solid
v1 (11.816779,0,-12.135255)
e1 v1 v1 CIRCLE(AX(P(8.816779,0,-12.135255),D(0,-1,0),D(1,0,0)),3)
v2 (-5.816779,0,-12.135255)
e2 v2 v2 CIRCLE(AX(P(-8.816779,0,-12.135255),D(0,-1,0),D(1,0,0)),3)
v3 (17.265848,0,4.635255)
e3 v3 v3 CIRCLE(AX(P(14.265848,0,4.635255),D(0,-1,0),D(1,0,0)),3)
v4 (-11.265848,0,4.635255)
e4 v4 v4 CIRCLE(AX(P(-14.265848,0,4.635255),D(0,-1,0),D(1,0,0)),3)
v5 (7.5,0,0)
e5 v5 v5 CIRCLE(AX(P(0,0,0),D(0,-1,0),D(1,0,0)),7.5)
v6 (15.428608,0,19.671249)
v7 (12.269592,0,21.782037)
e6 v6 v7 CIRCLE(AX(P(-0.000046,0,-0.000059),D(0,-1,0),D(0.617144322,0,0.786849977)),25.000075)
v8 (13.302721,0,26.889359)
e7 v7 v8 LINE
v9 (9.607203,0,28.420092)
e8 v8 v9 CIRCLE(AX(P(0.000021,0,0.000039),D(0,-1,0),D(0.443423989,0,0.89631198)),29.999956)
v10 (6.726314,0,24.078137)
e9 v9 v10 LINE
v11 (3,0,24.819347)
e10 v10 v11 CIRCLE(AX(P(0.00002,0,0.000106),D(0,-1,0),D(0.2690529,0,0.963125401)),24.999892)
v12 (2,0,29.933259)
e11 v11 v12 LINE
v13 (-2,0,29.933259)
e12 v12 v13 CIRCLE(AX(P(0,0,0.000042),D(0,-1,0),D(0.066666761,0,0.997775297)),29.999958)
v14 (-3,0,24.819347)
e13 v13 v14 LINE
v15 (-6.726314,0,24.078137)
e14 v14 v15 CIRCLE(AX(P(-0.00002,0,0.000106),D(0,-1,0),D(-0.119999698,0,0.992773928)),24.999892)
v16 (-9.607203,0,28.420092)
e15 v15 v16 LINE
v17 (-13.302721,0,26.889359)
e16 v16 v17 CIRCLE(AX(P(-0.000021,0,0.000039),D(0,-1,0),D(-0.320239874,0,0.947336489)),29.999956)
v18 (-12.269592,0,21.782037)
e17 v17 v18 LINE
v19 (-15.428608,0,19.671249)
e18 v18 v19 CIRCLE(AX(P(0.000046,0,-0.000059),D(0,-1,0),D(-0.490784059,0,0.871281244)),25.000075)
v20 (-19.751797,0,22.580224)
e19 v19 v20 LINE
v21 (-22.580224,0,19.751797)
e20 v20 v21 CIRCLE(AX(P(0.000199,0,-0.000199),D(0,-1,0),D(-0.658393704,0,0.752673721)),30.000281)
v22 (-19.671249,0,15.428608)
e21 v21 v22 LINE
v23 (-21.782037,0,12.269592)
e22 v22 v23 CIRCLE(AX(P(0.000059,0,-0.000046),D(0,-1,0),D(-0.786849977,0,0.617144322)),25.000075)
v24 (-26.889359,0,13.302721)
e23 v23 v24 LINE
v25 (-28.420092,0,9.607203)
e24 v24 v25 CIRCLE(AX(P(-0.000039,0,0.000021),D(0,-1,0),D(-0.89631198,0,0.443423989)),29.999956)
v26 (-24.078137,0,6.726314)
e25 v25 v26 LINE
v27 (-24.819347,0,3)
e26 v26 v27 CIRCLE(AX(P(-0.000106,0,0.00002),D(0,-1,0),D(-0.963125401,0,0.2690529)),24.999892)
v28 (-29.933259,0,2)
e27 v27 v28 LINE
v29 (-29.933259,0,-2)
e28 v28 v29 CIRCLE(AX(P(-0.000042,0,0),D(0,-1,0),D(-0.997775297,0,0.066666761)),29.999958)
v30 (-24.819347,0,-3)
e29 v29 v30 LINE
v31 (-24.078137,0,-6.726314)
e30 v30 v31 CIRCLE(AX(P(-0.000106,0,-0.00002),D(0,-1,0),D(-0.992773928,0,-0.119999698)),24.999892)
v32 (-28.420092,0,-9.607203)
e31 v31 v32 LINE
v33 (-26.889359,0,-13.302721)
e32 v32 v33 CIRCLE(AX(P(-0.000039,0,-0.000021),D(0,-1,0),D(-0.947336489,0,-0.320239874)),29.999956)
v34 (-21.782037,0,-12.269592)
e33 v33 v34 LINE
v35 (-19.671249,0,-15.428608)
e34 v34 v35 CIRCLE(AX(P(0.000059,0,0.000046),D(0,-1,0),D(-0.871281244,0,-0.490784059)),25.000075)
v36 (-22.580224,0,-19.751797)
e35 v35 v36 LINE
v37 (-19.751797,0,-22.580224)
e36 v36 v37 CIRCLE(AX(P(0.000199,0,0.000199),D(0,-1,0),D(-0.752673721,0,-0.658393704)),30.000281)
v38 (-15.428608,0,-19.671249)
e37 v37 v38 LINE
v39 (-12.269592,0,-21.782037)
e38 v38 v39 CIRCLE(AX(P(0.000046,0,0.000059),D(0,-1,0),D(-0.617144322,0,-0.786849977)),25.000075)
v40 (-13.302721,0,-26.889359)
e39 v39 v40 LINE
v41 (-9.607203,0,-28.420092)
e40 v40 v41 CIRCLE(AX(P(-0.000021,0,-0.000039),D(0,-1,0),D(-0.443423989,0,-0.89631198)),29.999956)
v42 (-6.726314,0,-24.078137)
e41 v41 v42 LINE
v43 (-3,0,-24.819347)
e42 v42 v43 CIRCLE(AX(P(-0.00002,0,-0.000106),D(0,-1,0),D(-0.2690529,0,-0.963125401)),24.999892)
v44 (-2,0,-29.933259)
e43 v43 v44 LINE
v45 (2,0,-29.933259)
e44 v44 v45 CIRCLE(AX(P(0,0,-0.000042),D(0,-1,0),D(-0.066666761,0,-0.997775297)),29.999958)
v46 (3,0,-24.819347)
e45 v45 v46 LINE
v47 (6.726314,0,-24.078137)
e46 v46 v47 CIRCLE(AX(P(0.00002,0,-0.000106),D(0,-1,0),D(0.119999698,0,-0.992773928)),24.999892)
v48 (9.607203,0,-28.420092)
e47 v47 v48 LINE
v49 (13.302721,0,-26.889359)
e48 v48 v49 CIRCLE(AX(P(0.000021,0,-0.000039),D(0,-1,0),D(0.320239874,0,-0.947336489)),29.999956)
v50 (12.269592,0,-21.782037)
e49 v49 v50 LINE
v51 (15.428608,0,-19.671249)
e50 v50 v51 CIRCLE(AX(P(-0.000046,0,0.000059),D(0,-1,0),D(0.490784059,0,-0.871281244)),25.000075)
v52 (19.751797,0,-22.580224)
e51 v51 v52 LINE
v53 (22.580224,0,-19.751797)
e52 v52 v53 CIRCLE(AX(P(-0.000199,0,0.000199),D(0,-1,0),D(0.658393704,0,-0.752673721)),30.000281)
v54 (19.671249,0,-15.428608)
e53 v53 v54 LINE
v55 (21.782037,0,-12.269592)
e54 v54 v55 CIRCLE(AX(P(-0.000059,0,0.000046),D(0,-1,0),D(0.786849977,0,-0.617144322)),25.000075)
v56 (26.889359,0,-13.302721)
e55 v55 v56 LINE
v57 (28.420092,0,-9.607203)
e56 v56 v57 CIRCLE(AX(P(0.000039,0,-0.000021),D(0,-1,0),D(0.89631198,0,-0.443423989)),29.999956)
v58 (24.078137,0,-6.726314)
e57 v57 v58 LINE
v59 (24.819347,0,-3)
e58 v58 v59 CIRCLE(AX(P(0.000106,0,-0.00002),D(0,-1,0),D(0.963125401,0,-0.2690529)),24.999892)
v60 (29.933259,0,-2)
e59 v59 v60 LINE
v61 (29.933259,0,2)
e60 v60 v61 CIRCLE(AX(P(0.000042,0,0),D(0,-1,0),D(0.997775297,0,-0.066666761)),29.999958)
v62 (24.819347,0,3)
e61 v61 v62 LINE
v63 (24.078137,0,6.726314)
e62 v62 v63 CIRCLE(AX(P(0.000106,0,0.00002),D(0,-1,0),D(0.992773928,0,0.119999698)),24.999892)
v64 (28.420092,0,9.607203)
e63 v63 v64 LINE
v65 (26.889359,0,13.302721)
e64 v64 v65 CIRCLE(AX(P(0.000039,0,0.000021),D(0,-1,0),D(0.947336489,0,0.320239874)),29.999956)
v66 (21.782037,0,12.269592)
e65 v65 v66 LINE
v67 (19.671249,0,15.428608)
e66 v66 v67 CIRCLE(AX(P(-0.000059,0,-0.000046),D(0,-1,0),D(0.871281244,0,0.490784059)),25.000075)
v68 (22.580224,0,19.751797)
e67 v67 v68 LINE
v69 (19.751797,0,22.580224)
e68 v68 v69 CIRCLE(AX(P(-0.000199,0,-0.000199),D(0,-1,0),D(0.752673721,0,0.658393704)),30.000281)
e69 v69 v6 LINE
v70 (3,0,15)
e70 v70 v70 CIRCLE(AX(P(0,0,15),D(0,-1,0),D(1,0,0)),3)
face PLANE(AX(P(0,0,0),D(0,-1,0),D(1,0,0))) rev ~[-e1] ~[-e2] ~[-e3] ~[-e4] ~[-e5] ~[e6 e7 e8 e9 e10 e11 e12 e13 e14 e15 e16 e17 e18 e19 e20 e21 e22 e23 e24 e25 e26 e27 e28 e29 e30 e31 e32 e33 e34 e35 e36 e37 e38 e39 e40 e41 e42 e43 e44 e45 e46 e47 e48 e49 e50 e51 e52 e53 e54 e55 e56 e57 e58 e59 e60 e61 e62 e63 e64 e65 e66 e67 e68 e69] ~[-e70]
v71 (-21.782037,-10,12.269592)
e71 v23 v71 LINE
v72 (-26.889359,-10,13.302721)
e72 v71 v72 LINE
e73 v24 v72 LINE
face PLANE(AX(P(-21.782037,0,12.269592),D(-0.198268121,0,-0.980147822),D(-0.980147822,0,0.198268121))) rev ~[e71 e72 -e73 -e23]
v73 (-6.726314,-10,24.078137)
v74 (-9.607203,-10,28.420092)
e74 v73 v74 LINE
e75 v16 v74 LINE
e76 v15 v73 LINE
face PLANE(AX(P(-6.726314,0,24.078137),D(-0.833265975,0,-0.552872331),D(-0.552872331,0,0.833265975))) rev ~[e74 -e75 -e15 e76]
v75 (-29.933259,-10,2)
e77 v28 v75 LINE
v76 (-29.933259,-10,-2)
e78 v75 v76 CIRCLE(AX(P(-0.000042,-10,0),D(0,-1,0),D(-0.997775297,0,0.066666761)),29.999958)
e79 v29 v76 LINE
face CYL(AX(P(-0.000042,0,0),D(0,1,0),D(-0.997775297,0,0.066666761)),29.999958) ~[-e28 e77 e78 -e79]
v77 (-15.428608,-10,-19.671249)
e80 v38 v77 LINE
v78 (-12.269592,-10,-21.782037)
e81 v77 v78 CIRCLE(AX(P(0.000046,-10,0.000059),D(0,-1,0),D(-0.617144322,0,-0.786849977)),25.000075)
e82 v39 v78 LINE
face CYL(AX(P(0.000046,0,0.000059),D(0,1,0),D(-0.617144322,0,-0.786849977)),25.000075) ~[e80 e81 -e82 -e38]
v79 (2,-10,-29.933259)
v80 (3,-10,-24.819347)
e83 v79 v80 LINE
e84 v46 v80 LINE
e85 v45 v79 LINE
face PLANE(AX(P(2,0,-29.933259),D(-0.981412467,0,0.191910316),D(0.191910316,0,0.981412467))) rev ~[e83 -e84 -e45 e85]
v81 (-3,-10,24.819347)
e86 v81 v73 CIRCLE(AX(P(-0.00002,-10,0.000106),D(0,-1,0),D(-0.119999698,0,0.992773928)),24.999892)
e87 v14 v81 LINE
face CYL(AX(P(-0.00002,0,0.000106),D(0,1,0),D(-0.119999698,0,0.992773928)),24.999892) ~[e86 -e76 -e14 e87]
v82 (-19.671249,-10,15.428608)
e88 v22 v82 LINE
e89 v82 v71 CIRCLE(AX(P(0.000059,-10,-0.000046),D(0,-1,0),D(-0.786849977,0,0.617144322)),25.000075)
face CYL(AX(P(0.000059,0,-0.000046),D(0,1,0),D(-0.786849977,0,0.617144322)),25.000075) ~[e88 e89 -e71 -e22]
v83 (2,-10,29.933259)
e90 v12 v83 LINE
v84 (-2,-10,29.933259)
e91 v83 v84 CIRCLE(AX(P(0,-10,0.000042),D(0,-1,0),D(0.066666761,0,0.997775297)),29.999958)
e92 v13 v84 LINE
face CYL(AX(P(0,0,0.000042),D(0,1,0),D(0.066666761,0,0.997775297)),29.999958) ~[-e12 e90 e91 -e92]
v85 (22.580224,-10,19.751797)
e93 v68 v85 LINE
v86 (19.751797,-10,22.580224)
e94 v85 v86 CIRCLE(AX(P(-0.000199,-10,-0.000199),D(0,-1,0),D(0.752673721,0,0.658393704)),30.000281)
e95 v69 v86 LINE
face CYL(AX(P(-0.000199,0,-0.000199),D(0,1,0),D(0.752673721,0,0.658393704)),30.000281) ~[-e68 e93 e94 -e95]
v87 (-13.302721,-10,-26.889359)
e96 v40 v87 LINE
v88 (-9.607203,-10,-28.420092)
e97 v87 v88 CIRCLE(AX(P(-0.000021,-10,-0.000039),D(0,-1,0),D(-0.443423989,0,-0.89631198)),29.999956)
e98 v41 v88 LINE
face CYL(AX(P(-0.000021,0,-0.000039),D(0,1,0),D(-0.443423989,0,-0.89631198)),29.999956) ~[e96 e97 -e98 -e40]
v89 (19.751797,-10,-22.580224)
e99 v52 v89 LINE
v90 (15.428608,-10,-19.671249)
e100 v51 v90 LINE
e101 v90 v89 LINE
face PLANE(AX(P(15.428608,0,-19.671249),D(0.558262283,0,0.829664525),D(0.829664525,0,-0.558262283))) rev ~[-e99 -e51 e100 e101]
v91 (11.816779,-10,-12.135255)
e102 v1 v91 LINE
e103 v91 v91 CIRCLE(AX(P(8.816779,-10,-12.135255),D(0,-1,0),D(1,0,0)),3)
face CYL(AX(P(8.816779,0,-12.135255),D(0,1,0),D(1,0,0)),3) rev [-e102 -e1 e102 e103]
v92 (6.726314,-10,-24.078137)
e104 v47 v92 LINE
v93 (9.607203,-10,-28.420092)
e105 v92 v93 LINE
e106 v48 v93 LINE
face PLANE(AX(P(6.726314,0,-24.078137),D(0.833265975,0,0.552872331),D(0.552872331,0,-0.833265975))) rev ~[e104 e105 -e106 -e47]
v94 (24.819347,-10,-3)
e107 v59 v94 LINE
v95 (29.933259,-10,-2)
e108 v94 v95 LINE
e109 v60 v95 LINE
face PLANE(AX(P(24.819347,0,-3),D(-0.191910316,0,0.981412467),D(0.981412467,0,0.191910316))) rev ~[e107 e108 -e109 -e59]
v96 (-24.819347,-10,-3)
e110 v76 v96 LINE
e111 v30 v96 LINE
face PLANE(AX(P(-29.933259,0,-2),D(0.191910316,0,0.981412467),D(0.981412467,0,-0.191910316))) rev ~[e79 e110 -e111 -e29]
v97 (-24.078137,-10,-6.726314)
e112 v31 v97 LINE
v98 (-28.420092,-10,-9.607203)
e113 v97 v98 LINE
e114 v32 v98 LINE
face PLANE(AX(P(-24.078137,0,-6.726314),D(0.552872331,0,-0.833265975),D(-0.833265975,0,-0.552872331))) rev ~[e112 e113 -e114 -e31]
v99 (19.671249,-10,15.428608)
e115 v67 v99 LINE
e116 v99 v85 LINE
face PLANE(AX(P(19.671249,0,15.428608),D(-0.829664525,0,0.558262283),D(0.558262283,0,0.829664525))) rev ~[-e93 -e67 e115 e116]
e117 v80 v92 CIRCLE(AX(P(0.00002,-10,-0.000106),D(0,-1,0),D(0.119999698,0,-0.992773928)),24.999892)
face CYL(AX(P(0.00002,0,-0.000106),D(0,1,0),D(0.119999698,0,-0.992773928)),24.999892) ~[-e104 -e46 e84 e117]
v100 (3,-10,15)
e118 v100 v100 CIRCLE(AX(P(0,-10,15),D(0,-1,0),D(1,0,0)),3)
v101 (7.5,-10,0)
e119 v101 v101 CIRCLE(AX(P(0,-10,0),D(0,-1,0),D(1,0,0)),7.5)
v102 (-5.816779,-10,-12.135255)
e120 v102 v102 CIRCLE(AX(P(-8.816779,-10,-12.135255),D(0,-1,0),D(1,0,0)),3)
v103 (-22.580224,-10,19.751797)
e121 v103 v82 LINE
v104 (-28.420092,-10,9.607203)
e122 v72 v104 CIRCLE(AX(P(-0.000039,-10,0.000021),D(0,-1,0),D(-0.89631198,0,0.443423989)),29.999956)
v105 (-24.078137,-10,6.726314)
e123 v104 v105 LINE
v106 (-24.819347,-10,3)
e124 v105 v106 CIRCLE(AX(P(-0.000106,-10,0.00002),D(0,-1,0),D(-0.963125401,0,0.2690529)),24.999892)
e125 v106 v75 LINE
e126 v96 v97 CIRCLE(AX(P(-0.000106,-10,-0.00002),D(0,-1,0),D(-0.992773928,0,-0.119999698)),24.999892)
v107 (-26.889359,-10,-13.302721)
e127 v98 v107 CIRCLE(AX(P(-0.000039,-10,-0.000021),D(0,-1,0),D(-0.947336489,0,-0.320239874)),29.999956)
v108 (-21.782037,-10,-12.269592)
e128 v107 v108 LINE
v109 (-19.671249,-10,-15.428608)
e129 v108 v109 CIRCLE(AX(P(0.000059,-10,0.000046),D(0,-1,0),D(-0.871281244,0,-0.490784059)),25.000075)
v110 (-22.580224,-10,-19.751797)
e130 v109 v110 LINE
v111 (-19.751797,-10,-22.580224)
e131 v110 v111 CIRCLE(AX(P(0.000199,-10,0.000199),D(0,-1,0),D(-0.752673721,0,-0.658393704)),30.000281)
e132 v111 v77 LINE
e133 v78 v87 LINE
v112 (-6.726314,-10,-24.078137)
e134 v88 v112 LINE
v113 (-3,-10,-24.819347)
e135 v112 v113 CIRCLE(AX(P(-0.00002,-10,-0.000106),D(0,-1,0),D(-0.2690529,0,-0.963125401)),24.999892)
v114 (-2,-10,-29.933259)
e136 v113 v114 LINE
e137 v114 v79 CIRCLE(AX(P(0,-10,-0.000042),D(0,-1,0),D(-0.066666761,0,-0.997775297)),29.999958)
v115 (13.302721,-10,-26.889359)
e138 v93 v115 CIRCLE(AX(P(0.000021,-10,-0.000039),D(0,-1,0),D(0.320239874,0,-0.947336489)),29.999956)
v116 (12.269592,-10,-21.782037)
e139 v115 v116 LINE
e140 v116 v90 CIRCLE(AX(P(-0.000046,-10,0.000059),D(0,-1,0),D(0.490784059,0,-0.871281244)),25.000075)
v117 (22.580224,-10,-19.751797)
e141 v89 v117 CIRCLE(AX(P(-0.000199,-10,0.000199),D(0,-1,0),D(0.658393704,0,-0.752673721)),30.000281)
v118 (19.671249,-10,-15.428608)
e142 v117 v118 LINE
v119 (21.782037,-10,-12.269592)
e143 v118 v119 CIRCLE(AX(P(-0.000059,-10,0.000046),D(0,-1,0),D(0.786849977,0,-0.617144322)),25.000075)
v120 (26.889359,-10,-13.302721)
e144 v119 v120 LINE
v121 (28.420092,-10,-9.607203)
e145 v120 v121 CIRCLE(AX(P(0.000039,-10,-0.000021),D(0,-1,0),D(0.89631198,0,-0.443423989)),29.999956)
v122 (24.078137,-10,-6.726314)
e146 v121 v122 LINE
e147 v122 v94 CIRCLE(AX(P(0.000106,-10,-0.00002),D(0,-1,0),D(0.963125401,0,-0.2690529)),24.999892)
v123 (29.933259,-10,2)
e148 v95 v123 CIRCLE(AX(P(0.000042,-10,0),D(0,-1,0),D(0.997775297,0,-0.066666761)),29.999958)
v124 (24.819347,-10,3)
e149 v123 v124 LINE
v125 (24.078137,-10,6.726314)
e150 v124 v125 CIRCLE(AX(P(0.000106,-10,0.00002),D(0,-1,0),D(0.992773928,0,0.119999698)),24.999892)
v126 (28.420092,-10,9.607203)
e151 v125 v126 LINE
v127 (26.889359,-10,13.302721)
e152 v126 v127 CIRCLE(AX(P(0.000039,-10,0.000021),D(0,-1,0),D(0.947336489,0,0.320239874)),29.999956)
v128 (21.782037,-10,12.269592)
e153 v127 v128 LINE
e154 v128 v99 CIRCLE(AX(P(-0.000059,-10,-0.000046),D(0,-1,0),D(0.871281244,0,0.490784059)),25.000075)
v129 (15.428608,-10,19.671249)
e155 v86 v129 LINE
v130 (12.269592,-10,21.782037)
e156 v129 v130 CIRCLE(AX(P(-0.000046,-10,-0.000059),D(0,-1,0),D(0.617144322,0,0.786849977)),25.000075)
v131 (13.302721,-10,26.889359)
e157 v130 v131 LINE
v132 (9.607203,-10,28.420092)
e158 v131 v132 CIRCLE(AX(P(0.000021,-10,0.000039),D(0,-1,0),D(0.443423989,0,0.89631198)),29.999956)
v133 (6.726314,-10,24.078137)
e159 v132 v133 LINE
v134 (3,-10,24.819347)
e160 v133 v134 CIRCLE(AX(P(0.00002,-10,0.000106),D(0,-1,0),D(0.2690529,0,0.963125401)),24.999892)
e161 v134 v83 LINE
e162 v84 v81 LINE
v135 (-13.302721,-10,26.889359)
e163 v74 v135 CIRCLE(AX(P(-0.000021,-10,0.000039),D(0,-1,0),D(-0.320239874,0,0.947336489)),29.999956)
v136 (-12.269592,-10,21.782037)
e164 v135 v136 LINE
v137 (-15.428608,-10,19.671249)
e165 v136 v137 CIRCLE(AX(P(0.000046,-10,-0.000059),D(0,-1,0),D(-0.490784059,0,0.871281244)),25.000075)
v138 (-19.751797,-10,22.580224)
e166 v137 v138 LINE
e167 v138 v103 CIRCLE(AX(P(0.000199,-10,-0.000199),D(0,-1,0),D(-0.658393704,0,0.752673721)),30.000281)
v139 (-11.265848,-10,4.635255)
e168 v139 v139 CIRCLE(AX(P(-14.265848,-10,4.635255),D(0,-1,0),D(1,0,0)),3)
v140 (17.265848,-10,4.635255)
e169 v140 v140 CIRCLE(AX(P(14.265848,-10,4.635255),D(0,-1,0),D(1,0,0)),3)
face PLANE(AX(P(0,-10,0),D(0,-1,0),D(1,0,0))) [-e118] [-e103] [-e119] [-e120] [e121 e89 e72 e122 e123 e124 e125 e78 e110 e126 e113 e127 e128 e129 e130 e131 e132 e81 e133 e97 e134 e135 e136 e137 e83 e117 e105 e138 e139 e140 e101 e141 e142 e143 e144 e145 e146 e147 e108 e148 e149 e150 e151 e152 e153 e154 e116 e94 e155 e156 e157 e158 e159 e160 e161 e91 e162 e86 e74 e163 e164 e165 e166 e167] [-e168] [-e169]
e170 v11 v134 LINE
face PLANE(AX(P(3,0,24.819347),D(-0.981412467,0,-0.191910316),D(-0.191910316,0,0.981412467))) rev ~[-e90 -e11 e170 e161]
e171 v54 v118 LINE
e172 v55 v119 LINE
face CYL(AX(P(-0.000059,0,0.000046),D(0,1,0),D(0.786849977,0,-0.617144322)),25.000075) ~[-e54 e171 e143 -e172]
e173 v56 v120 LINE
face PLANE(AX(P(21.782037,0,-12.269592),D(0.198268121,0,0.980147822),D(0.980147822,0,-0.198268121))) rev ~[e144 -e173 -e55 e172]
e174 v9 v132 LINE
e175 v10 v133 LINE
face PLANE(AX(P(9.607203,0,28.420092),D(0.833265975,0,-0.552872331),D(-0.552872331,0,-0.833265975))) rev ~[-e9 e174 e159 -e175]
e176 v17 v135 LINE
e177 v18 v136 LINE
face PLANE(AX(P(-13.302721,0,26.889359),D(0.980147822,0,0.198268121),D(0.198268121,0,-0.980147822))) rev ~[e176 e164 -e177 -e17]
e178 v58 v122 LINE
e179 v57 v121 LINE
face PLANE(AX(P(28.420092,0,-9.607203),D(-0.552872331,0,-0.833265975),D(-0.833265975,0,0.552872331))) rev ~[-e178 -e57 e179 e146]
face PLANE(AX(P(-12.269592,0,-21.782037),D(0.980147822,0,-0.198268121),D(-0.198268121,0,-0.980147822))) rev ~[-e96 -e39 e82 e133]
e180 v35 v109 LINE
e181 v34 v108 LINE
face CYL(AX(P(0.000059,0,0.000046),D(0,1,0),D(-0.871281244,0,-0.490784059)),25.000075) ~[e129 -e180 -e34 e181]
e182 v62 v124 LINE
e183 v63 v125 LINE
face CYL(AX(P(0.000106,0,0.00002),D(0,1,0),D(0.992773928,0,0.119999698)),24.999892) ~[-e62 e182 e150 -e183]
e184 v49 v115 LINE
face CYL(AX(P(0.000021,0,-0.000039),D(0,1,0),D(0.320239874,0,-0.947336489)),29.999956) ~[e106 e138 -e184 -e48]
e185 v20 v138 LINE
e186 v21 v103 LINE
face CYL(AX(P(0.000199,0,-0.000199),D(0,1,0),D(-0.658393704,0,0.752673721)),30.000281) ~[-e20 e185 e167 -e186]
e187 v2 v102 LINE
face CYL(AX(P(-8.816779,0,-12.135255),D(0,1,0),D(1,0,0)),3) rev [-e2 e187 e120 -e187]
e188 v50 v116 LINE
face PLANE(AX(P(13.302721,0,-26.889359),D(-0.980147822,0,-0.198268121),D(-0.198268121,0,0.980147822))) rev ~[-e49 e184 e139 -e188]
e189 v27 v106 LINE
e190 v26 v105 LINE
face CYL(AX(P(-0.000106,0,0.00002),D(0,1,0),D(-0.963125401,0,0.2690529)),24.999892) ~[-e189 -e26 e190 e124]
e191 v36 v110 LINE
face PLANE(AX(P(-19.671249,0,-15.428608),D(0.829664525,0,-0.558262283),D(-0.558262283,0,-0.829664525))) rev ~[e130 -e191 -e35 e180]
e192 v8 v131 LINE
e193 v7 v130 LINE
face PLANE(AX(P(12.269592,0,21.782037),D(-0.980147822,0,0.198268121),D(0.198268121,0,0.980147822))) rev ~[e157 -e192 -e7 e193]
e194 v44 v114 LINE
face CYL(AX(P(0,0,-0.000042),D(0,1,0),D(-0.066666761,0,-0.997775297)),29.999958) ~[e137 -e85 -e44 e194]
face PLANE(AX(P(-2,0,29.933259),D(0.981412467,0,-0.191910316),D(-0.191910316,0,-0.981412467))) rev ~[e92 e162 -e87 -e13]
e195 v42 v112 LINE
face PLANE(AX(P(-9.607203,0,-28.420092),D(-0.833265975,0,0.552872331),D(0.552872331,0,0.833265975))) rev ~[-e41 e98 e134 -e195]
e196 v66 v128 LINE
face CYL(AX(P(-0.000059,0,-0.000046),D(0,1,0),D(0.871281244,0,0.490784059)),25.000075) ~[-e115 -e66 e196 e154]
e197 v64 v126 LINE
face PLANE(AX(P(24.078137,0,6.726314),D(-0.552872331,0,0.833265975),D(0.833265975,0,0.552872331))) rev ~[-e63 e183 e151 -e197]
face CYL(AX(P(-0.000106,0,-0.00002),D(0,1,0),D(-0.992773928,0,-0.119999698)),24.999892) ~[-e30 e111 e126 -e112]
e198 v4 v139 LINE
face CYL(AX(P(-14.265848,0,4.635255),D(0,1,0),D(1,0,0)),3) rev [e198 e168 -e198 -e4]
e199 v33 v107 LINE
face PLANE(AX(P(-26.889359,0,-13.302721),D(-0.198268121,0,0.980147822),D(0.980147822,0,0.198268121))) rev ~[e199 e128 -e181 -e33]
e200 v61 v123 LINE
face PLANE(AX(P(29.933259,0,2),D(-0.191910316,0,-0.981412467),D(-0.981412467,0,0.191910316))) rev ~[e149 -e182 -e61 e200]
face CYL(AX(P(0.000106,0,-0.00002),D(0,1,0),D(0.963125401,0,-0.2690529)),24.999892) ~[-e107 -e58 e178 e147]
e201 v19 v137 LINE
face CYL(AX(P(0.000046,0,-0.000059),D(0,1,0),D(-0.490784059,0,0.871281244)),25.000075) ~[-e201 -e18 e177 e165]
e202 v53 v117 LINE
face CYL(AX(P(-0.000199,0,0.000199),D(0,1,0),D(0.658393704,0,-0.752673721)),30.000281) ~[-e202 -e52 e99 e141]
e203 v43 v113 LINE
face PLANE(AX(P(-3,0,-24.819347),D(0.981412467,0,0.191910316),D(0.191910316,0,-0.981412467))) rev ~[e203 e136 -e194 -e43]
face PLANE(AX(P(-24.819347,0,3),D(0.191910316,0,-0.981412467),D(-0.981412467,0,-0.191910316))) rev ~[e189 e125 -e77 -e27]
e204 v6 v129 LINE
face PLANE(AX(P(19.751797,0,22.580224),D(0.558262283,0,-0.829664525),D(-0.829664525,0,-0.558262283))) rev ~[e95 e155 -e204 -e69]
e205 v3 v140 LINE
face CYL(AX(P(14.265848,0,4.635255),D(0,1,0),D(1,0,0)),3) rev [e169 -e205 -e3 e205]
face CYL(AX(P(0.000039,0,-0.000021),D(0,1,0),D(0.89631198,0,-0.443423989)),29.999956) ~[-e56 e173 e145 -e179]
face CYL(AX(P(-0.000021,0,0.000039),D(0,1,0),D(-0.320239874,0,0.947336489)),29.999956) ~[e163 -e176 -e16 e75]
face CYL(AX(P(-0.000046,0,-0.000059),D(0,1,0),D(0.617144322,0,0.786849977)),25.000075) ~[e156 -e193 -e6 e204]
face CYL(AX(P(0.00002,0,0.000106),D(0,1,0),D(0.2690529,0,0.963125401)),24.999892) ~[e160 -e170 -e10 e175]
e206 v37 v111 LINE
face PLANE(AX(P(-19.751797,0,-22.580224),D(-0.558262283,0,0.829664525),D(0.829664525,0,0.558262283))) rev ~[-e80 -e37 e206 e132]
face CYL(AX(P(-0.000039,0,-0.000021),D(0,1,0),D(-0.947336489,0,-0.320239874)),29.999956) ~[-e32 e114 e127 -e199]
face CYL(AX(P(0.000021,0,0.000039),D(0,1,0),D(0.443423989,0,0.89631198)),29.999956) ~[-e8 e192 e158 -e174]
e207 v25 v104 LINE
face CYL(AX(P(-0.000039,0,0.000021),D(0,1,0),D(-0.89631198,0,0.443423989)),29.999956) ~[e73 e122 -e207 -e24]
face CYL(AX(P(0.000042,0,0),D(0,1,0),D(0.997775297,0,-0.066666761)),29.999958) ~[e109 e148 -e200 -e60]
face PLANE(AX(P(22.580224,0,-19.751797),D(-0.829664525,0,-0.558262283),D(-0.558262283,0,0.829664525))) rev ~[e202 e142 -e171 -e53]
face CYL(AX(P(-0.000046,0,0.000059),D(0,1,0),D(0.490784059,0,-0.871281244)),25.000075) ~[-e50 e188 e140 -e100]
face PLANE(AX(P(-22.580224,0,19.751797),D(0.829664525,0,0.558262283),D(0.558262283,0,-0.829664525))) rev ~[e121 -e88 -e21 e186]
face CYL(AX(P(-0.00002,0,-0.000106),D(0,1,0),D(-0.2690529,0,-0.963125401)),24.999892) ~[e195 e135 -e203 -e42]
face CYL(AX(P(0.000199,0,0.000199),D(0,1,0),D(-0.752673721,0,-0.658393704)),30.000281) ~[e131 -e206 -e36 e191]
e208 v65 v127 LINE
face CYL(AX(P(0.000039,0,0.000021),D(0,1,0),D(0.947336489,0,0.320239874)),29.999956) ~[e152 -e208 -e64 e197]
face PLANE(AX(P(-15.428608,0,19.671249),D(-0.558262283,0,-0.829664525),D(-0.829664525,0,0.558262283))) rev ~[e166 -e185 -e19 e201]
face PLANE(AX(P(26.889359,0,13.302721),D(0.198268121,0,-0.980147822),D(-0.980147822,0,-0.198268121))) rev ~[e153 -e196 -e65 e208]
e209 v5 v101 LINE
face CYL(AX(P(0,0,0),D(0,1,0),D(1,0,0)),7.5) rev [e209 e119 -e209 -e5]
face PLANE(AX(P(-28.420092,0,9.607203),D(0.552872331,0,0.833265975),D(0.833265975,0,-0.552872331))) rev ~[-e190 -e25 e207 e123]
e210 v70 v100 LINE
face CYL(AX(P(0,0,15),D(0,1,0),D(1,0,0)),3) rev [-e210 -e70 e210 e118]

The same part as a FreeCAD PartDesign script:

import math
import FreeCAD as App
import Part
import Sketcher

V = App.Vector

doc = App.newDocument("Part")
body = doc.addObject("PartDesign::Body", "Body")

# Sketch on XZ plane
sketch1 = body.newObject("Sketcher::SketchObject", "Sketch")
sketch1.AttachmentSupport = (doc.getObject("XZ_Plane"), [""])
sketch1.MapMode = "FlatFace"
sketch1.addGeometry(Part.LineSegment(V(-13.302721, 26.889359, 0), V(-12.269592, 21.782037, 0)), False)
sketch1.addGeometry(Part.ArcOfCircle(Part.Circle(V(0.000046, -0.000059, 0), V(0, 0, 1), 25.000075), math.radians(119.392129), math.radians(128.107896)), False)
sketch1.addGeometry(Part.LineSegment(V(-15.428608, 19.671249, 0), V(-19.751797, 22.580224, 0)), False)
sketch1.addGeometry(Part.ArcOfCircle(Part.Circle(V(0.000199, -0.000199, 0), V(0, 0, 1), 30.000281), math.radians(131.177482), math.radians(138.822518)), False)
sketch1.addGeometry(Part.LineSegment(V(-22.580224, 19.751797, 0), V(-19.671249, 15.428608, 0)), False)
sketch1.addGeometry(Part.ArcOfCircle(Part.Circle(V(0.000059, -0.000046, 0), V(0, 0, 1), 25.000075), math.radians(141.892104), math.radians(150.607871)), False)
sketch1.addGeometry(Part.LineSegment(V(-21.782037, 12.269592, 0), V(-26.889359, 13.302721, 0)), False)
sketch1.addGeometry(Part.ArcOfCircle(Part.Circle(V(-0.000039, 0.000021, 0), V(0, 0, 1), 29.999956), math.radians(153.67745), math.radians(161.322568)), False)
sketch1.addGeometry(Part.LineSegment(V(-28.420092, 9.607203, 0), V(-24.078137, 6.726314, 0)), False)
sketch1.addGeometry(Part.ArcOfCircle(Part.Circle(V(-0.000106, 0.00002, 0), V(0, 0, 1), 24.999892), math.radians(164.392083), math.radians(173.107915)), False)
sketch1.addGeometry(Part.LineSegment(V(-24.819347, 3, 0), V(-29.933259, 2, 0)), False)
sketch1.addGeometry(Part.ArcOfCircle(Part.Circle(V(-0.000042, 0, 0), V(0, 0, 1), 29.999958), math.radians(176.177441), math.radians(183.822559)), False)
sketch1.addGeometry(Part.LineSegment(V(-29.933259, -2, 0), V(-24.819347, -3, 0)), False)
sketch1.addGeometry(Part.ArcOfCircle(Part.Circle(V(-0.000106, -0.00002, 0), V(0, 0, 1), 24.999892), math.radians(-173.107915), math.radians(-164.392083)), False)
sketch1.addGeometry(Part.LineSegment(V(-24.078137, -6.726314, 0), V(-28.420092, -9.607203, 0)), False)
sketch1.addGeometry(Part.ArcOfCircle(Part.Circle(V(-0.000039, -0.000021, 0), V(0, 0, 1), 29.999956), math.radians(-161.322568), math.radians(-153.67745)), False)
sketch1.addGeometry(Part.LineSegment(V(-26.889359, -13.302721, 0), V(-21.782037, -12.269592, 0)), False)
sketch1.addGeometry(Part.ArcOfCircle(Part.Circle(V(0.000059, 0.000046, 0), V(0, 0, 1), 25.000075), math.radians(-150.607871), math.radians(-141.892104)), False)
sketch1.addGeometry(Part.LineSegment(V(-19.671249, -15.428608, 0), V(-22.580224, -19.751797, 0)), False)
sketch1.addGeometry(Part.ArcOfCircle(Part.Circle(V(0.000199, 0.000199, 0), V(0, 0, 1), 30.000281), math.radians(-138.822518), math.radians(-131.177482)), False)
sketch1.addGeometry(Part.LineSegment(V(-19.751797, -22.580224, 0), V(-15.428608, -19.671249, 0)), False)
sketch1.addGeometry(Part.ArcOfCircle(Part.Circle(V(0.000046, 0.000059, 0), V(0, 0, 1), 25.000075), math.radians(-128.107896), math.radians(-119.392129)), False)
sketch1.addGeometry(Part.LineSegment(V(-12.269592, -21.782037, 0), V(-13.302721, -26.889359, 0)), False)
sketch1.addGeometry(Part.ArcOfCircle(Part.Circle(V(-0.000021, -0.000039, 0), V(0, 0, 1), 29.999956), math.radians(-116.32255), math.radians(-108.677432)), False)
sketch1.addGeometry(Part.LineSegment(V(-9.607203, -28.420092, 0), V(-6.726314, -24.078137, 0)), False)
sketch1.addGeometry(Part.ArcOfCircle(Part.Circle(V(-0.00002, -0.000106, 0), V(0, 0, 1), 24.999892), math.radians(-105.607917), math.radians(-96.892085)), False)
sketch1.addGeometry(Part.LineSegment(V(-3, -24.819347, 0), V(-2, -29.933259, 0)), False)
sketch1.addGeometry(Part.ArcOfCircle(Part.Circle(V(0, -0.000042, 0), V(0, 0, 1), 29.999958), math.radians(-93.822559), math.radians(-86.177441)), False)
sketch1.addGeometry(Part.LineSegment(V(2, -29.933259, 0), V(3, -24.819347, 0)), False)
sketch1.addGeometry(Part.ArcOfCircle(Part.Circle(V(0.00002, -0.000106, 0), V(0, 0, 1), 24.999892), math.radians(-83.107915), math.radians(-74.392083)), False)
sketch1.addGeometry(Part.LineSegment(V(6.726314, -24.078137, 0), V(9.607203, -28.420092, 0)), False)
sketch1.addGeometry(Part.ArcOfCircle(Part.Circle(V(0.000021, -0.000039, 0), V(0, 0, 1), 29.999956), math.radians(-71.322568), math.radians(-63.67745)), False)
sketch1.addGeometry(Part.LineSegment(V(13.302721, -26.889359, 0), V(12.269592, -21.782037, 0)), False)
sketch1.addGeometry(Part.ArcOfCircle(Part.Circle(V(-0.000046, 0.000059, 0), V(0, 0, 1), 25.000075), math.radians(-60.607871), math.radians(-51.892104)), False)
sketch1.addGeometry(Part.LineSegment(V(15.428608, -19.671249, 0), V(19.751797, -22.580224, 0)), False)
sketch1.addGeometry(Part.ArcOfCircle(Part.Circle(V(-0.000199, 0.000199, 0), V(0, 0, 1), 30.000281), math.radians(-48.822518), math.radians(-41.177482)), False)
sketch1.addGeometry(Part.LineSegment(V(22.580224, -19.751797, 0), V(19.671249, -15.428608, 0)), False)
sketch1.addGeometry(Part.ArcOfCircle(Part.Circle(V(-0.000059, 0.000046, 0), V(0, 0, 1), 25.000075), math.radians(-38.107896), math.radians(-29.392129)), False)
sketch1.addGeometry(Part.LineSegment(V(21.782037, -12.269592, 0), V(26.889359, -13.302721, 0)), False)
sketch1.addGeometry(Part.ArcOfCircle(Part.Circle(V(0.000039, -0.000021, 0), V(0, 0, 1), 29.999956), math.radians(-26.32255), math.radians(-18.677432)), False)
sketch1.addGeometry(Part.LineSegment(V(28.420092, -9.607203, 0), V(24.078137, -6.726314, 0)), False)
sketch1.addGeometry(Part.ArcOfCircle(Part.Circle(V(0.000106, -0.00002, 0), V(0, 0, 1), 24.999892), math.radians(-15.607917), math.radians(-6.892085)), False)
sketch1.addGeometry(Part.LineSegment(V(24.819347, -3, 0), V(29.933259, -2, 0)), False)
sketch1.addGeometry(Part.ArcOfCircle(Part.Circle(V(0.000042, 0, 0), V(0, 0, 1), 29.999958), math.radians(-3.822559), math.radians(3.822559)), False)
sketch1.addGeometry(Part.LineSegment(V(29.933259, 2, 0), V(24.819347, 3, 0)), False)
sketch1.addGeometry(Part.ArcOfCircle(Part.Circle(V(0.000106, 0.00002, 0), V(0, 0, 1), 24.999892), math.radians(6.892085), math.radians(15.607917)), False)
sketch1.addGeometry(Part.LineSegment(V(24.078137, 6.726314, 0), V(28.420092, 9.607203, 0)), False)
sketch1.addGeometry(Part.ArcOfCircle(Part.Circle(V(0.000039, 0.000021, 0), V(0, 0, 1), 29.999956), math.radians(18.677432), math.radians(26.32255)), False)
sketch1.addGeometry(Part.LineSegment(V(26.889359, 13.302721, 0), V(21.782037, 12.269592, 0)), False)
sketch1.addGeometry(Part.ArcOfCircle(Part.Circle(V(-0.000059, -0.000046, 0), V(0, 0, 1), 25.000075), math.radians(29.392129), math.radians(38.107896)), False)
sketch1.addGeometry(Part.LineSegment(V(19.671249, 15.428608, 0), V(22.580224, 19.751797, 0)), False)
sketch1.addGeometry(Part.ArcOfCircle(Part.Circle(V(-0.000199, -0.000199, 0), V(0, 0, 1), 30.000281), math.radians(41.177482), math.radians(48.822518)), False)
sketch1.addGeometry(Part.LineSegment(V(19.751797, 22.580224, 0), V(15.428608, 19.671249, 0)), False)
sketch1.addGeometry(Part.ArcOfCircle(Part.Circle(V(-0.000046, -0.000059, 0), V(0, 0, 1), 25.000075), math.radians(51.892104), math.radians(60.607871)), False)
sketch1.addGeometry(Part.LineSegment(V(12.269592, 21.782037, 0), V(13.302721, 26.889359, 0)), False)
sketch1.addGeometry(Part.ArcOfCircle(Part.Circle(V(0.000021, 0.000039, 0), V(0, 0, 1), 29.999956), math.radians(63.67745), math.radians(71.322568)), False)
sketch1.addGeometry(Part.LineSegment(V(9.607203, 28.420092, 0), V(6.726314, 24.078137, 0)), False)
sketch1.addGeometry(Part.ArcOfCircle(Part.Circle(V(0.00002, 0.000106, 0), V(0, 0, 1), 24.999892), math.radians(74.392083), math.radians(83.107915)), False)
sketch1.addGeometry(Part.LineSegment(V(3, 24.819347, 0), V(2, 29.933259, 0)), False)
sketch1.addGeometry(Part.ArcOfCircle(Part.Circle(V(0, 0.000042, 0), V(0, 0, 1), 29.999958), math.radians(86.177441), math.radians(93.822559)), False)
sketch1.addGeometry(Part.LineSegment(V(-2, 29.933259, 0), V(-3, 24.819347, 0)), False)
sketch1.addGeometry(Part.ArcOfCircle(Part.Circle(V(-0.00002, 0.000106, 0), V(0, 0, 1), 24.999892), math.radians(96.892085), math.radians(105.607917)), False)
sketch1.addGeometry(Part.LineSegment(V(-6.726314, 24.078137, 0), V(-9.607203, 28.420092, 0)), False)
sketch1.addGeometry(Part.ArcOfCircle(Part.Circle(V(-0.000021, 0.000039, 0), V(0, 0, 1), 29.999956), math.radians(108.677432), math.radians(116.32255)), False)
sketch1.addGeometry(Part.Circle(V(-8.816779, -12.135255, 0), V(0, 0, 1), 3), False)
sketch1.addGeometry(Part.Circle(V(0, 0, 0), V(0, 0, 1), 7.5), False)
sketch1.addGeometry(Part.Circle(V(8.816779, -12.135255, 0), V(0, 0, 1), 3), False)
sketch1.addGeometry(Part.Circle(V(-14.265848, 4.635255, 0), V(0, 0, 1), 3), False)
sketch1.addGeometry(Part.Circle(V(0, 15, 0), V(0, 0, 1), 3), False)
sketch1.addGeometry(Part.Circle(V(14.265848, 4.635255, 0), V(0, 0, 1), 3), False)
sketch1.addConstraint(Sketcher.Constraint("Coincident", 0, 2, 1, 1))
sketch1.addConstraint(Sketcher.Constraint("Coincident", 1, 2, 2, 1))
sketch1.addConstraint(Sketcher.Constraint("Coincident", 2, 2, 3, 1))
sketch1.addConstraint(Sketcher.Constraint("Coincident", 3, 2, 4, 1))
sketch1.addConstraint(Sketcher.Constraint("Coincident", 4, 2, 5, 1))
sketch1.addConstraint(Sketcher.Constraint("Coincident", 5, 2, 6, 1))
sketch1.addConstraint(Sketcher.Constraint("Coincident", 6, 2, 7, 1))
sketch1.addConstraint(Sketcher.Constraint("Coincident", 7, 2, 8, 1))
sketch1.addConstraint(Sketcher.Constraint("Coincident", 8, 2, 9, 1))
sketch1.addConstraint(Sketcher.Constraint("Coincident", 9, 2, 10, 1))
sketch1.addConstraint(Sketcher.Constraint("Coincident", 10, 2, 11, 1))
sketch1.addConstraint(Sketcher.Constraint("Coincident", 11, 2, 12, 1))
sketch1.addConstraint(Sketcher.Constraint("Coincident", 12, 2, 13, 1))
sketch1.addConstraint(Sketcher.Constraint("Coincident", 13, 2, 14, 1))
sketch1.addConstraint(Sketcher.Constraint("Coincident", 14, 2, 15, 1))
sketch1.addConstraint(Sketcher.Constraint("Coincident", 15, 2, 16, 1))
sketch1.addConstraint(Sketcher.Constraint("Coincident", 16, 2, 17, 1))
sketch1.addConstraint(Sketcher.Constraint("Coincident", 17, 2, 18, 1))
sketch1.addConstraint(Sketcher.Constraint("Coincident", 18, 2, 19, 1))
sketch1.addConstraint(Sketcher.Constraint("Coincident", 19, 2, 20, 1))
sketch1.addConstraint(Sketcher.Constraint("Coincident", 20, 2, 21, 1))
sketch1.addConstraint(Sketcher.Constraint("Coincident", 21, 2, 22, 1))
sketch1.addConstraint(Sketcher.Constraint("Coincident", 22, 2, 23, 1))
sketch1.addConstraint(Sketcher.Constraint("Coincident", 23, 2, 24, 1))
sketch1.addConstraint(Sketcher.Constraint("Coincident", 24, 2, 25, 1))
sketch1.addConstraint(Sketcher.Constraint("Coincident", 25, 2, 26, 1))
sketch1.addConstraint(Sketcher.Constraint("Coincident", 26, 2, 27, 1))
sketch1.addConstraint(Sketcher.Constraint("Coincident", 27, 2, 28, 1))
sketch1.addConstraint(Sketcher.Constraint("Coincident", 28, 2, 29, 1))
sketch1.addConstraint(Sketcher.Constraint("Coincident", 29, 2, 30, 1))
sketch1.addConstraint(Sketcher.Constraint("Coincident", 30, 2, 31, 1))
sketch1.addConstraint(Sketcher.Constraint("Coincident", 31, 2, 32, 1))
sketch1.addConstraint(Sketcher.Constraint("Coincident", 32, 2, 33, 1))
sketch1.addConstraint(Sketcher.Constraint("Coincident", 33, 2, 34, 1))
sketch1.addConstraint(Sketcher.Constraint("Coincident", 34, 2, 35, 1))
sketch1.addConstraint(Sketcher.Constraint("Coincident", 35, 2, 36, 1))
sketch1.addConstraint(Sketcher.Constraint("Coincident", 36, 2, 37, 1))
sketch1.addConstraint(Sketcher.Constraint("Coincident", 37, 2, 38, 1))
sketch1.addConstraint(Sketcher.Constraint("Coincident", 38, 2, 39, 1))
sketch1.addConstraint(Sketcher.Constraint("Coincident", 39, 2, 40, 1))
sketch1.addConstraint(Sketcher.Constraint("Coincident", 40, 2, 41, 1))
sketch1.addConstraint(Sketcher.Constraint("Coincident", 41, 2, 42, 1))
sketch1.addConstraint(Sketcher.Constraint("Coincident", 42, 2, 43, 1))
sketch1.addConstraint(Sketcher.Constraint("Coincident", 43, 2, 44, 1))
sketch1.addConstraint(Sketcher.Constraint("Coincident", 44, 2, 45, 1))
sketch1.addConstraint(Sketcher.Constraint("Coincident", 45, 2, 46, 1))
sketch1.addConstraint(Sketcher.Constraint("Coincident", 46, 2, 47, 1))
sketch1.addConstraint(Sketcher.Constraint("Coincident", 47, 2, 48, 1))
sketch1.addConstraint(Sketcher.Constraint("Coincident", 48, 2, 49, 1))
sketch1.addConstraint(Sketcher.Constraint("Coincident", 49, 2, 50, 1))
sketch1.addConstraint(Sketcher.Constraint("Coincident", 50, 2, 51, 1))
sketch1.addConstraint(Sketcher.Constraint("Coincident", 51, 2, 52, 1))
sketch1.addConstraint(Sketcher.Constraint("Coincident", 52, 2, 53, 1))
sketch1.addConstraint(Sketcher.Constraint("Coincident", 53, 2, 54, 1))
sketch1.addConstraint(Sketcher.Constraint("Coincident", 54, 2, 55, 1))
sketch1.addConstraint(Sketcher.Constraint("Coincident", 55, 2, 56, 1))
sketch1.addConstraint(Sketcher.Constraint("Coincident", 56, 2, 57, 1))
sketch1.addConstraint(Sketcher.Constraint("Coincident", 57, 2, 58, 1))
sketch1.addConstraint(Sketcher.Constraint("Coincident", 58, 2, 59, 1))
sketch1.addConstraint(Sketcher.Constraint("Coincident", 59, 2, 60, 1))
sketch1.addConstraint(Sketcher.Constraint("Coincident", 60, 2, 61, 1))
sketch1.addConstraint(Sketcher.Constraint("Coincident", 61, 2, 62, 1))
sketch1.addConstraint(Sketcher.Constraint("Coincident", 62, 2, 63, 1))
sketch1.addConstraint(Sketcher.Constraint("Coincident", 63, 2, 0, 1))
sketch1.addConstraint(Sketcher.Constraint("Coincident", 65, 3, -1, 1))
sketch1.addConstraint(Sketcher.Constraint("Equal", 1, 5))
sketch1.addConstraint(Sketcher.Constraint("Equal", 9, 13))
sketch1.addConstraint(Sketcher.Constraint("Equal", 7, 15))
sketch1.addConstraint(Sketcher.Constraint("Equal", 5, 17))
sketch1.addConstraint(Sketcher.Constraint("Equal", 3, 19))
sketch1.addConstraint(Sketcher.Constraint("Equal", 17, 21))
sketch1.addConstraint(Sketcher.Constraint("Equal", 15, 23))
sketch1.addConstraint(Sketcher.Constraint("Equal", 13, 25))
sketch1.addConstraint(Sketcher.Constraint("Equal", 11, 27))
sketch1.addConstraint(Sketcher.Constraint("Equal", 25, 29))
sketch1.addConstraint(Sketcher.Constraint("Equal", 23, 31))
sketch1.addConstraint(Sketcher.Constraint("Equal", 21, 33))
sketch1.addConstraint(Sketcher.Constraint("Equal", 19, 35))
sketch1.addConstraint(Sketcher.Constraint("Equal", 33, 37))
sketch1.addConstraint(Sketcher.Constraint("Equal", 31, 39))
sketch1.addConstraint(Sketcher.Constraint("Equal", 29, 41))
sketch1.addConstraint(Sketcher.Constraint("Equal", 27, 43))
sketch1.addConstraint(Sketcher.Constraint("Equal", 41, 45))
sketch1.addConstraint(Sketcher.Constraint("Equal", 39, 47))
sketch1.addConstraint(Sketcher.Constraint("Equal", 37, 49))
sketch1.addConstraint(Sketcher.Constraint("Equal", 35, 51))
sketch1.addConstraint(Sketcher.Constraint("Equal", 49, 53))
sketch1.addConstraint(Sketcher.Constraint("Equal", 47, 55))
sketch1.addConstraint(Sketcher.Constraint("Equal", 45, 57))
sketch1.addConstraint(Sketcher.Constraint("Equal", 43, 59))
sketch1.addConstraint(Sketcher.Constraint("Equal", 57, 61))
sketch1.addConstraint(Sketcher.Constraint("Equal", 55, 63))
sketch1.addConstraint(Sketcher.Constraint("Equal", 64, 66))
sketch1.addConstraint(Sketcher.Constraint("Equal", 66, 67))
sketch1.addConstraint(Sketcher.Constraint("Equal", 67, 68))
sketch1.addConstraint(Sketcher.Constraint("Equal", 68, 69))
sketch1.addConstraint(Sketcher.Constraint("Symmetric", 1, 3, 33, 3, -1, 1))
sketch1.addConstraint(Sketcher.Constraint("Symmetric", 3, 3, 35, 3, -1, 1))
sketch1.addConstraint(Sketcher.Constraint("Symmetric", 5, 3, 37, 3, -1, 1))
sketch1.addConstraint(Sketcher.Constraint("Symmetric", 7, 3, 39, 3, -1, 1))
sketch1.addConstraint(Sketcher.Constraint("Symmetric", 9, 3, 41, 3, -1, 1))
sketch1.addConstraint(Sketcher.Constraint("Symmetric", 11, 3, 43, 3, -1, 1))
sketch1.addConstraint(Sketcher.Constraint("Symmetric", 13, 3, 45, 3, -1, 1))
sketch1.addConstraint(Sketcher.Constraint("Symmetric", 15, 3, 47, 3, -1, 1))
sketch1.addConstraint(Sketcher.Constraint("Symmetric", 17, 3, 49, 3, -1, 1))
sketch1.addConstraint(Sketcher.Constraint("Symmetric", 19, 3, 51, 3, -1, 1))
sketch1.addConstraint(Sketcher.Constraint("Symmetric", 21, 3, 53, 3, -1, 1))
sketch1.addConstraint(Sketcher.Constraint("Symmetric", 23, 3, 55, 3, -1, 1))
sketch1.addConstraint(Sketcher.Constraint("Symmetric", 25, 3, 57, 3, -1, 1))
sketch1.addConstraint(Sketcher.Constraint("Symmetric", 27, 3, 59, 3, -1, 1))
sketch1.addConstraint(Sketcher.Constraint("Symmetric", 29, 3, 61, 3, -1, 1))
sketch1.addConstraint(Sketcher.Constraint("Symmetric", 31, 3, 63, 3, -1, 1))
sketch1.addConstraint(Sketcher.Constraint("Symmetric", 25, 3, 29, 3, -2))
sketch1.addConstraint(Sketcher.Constraint("Symmetric", 23, 3, 31, 3, -2))
sketch1.addConstraint(Sketcher.Constraint("Symmetric", 21, 3, 33, 3, -2))
sketch1.addConstraint(Sketcher.Constraint("Symmetric", 19, 3, 35, 3, -2))
sketch1.addConstraint(Sketcher.Constraint("Symmetric", 17, 3, 37, 3, -2))
sketch1.addConstraint(Sketcher.Constraint("Symmetric", 15, 3, 39, 3, -2))
sketch1.addConstraint(Sketcher.Constraint("Symmetric", 13, 3, 41, 3, -2))
sketch1.addConstraint(Sketcher.Constraint("Symmetric", 64, 3, 66, 3, -2))
sketch1.addConstraint(Sketcher.Constraint("Symmetric", 67, 3, 69, 3, -2))
sketch1.addConstraint(Sketcher.Constraint("Symmetric", 26, 2, 27, 2, -2))
sketch1.addConstraint(Sketcher.Constraint("Symmetric", 11, 2, 42, 2, -2))
sketch1.addConstraint(Sketcher.Constraint("PointOnObject", 68, 3, -2))
sketch1.addConstraint(Sketcher.Constraint("Perpendicular", 0, 16))
sketch1.addConstraint(Sketcher.Constraint("Perpendicular", 2, 18))
sketch1.addConstraint(Sketcher.Constraint("Perpendicular", 4, 20))
sketch1.addConstraint(Sketcher.Constraint("Perpendicular", 6, 22))
sketch1.addConstraint(Sketcher.Constraint("Perpendicular", 8, 24))
sketch1.addConstraint(Sketcher.Constraint("Perpendicular", 10, 26))
sketch1.addConstraint(Sketcher.Constraint("Perpendicular", 12, 28))
sketch1.addConstraint(Sketcher.Constraint("Perpendicular", 14, 30))
sketch1.addConstraint(Sketcher.Constraint("Perpendicular", 16, 32))
sketch1.addConstraint(Sketcher.Constraint("Perpendicular", 18, 34))
sketch1.addConstraint(Sketcher.Constraint("Perpendicular", 20, 36))
sketch1.addConstraint(Sketcher.Constraint("Perpendicular", 22, 38))
sketch1.addConstraint(Sketcher.Constraint("Perpendicular", 24, 40))
sketch1.addConstraint(Sketcher.Constraint("Perpendicular", 26, 42))
sketch1.addConstraint(Sketcher.Constraint("Perpendicular", 28, 44))
sketch1.addConstraint(Sketcher.Constraint("Perpendicular", 30, 46))
sketch1.addConstraint(Sketcher.Constraint("Perpendicular", 32, 48))
sketch1.addConstraint(Sketcher.Constraint("Perpendicular", 34, 50))
sketch1.addConstraint(Sketcher.Constraint("Perpendicular", 36, 52))
sketch1.addConstraint(Sketcher.Constraint("Perpendicular", 38, 54))
sketch1.addConstraint(Sketcher.Constraint("Perpendicular", 40, 56))
sketch1.addConstraint(Sketcher.Constraint("Perpendicular", 42, 58))
sketch1.addConstraint(Sketcher.Constraint("Perpendicular", 44, 60))
sketch1.addConstraint(Sketcher.Constraint("Perpendicular", 46, 62))
sketch1.addConstraint(Sketcher.Constraint("Horizontal", 7, 3, 9, 3))
sketch1.addConstraint(Sketcher.Constraint("Horizontal", 25, 2, 28, 2))
sketch1.addConstraint(Sketcher.Constraint("Horizontal", 24, 2, 29, 2))
sketch1.addConstraint(Sketcher.Constraint("Horizontal", 23, 2, 30, 2))
sketch1.addConstraint(Sketcher.Constraint("Horizontal", 22, 2, 31, 2))
sketch1.addConstraint(Sketcher.Constraint("Horizontal", 21, 2, 32, 2))
sketch1.addConstraint(Sketcher.Constraint("Horizontal", 20, 2, 33, 2))
sketch1.addConstraint(Sketcher.Constraint("Horizontal", 19, 2, 34, 2))
sketch1.addConstraint(Sketcher.Constraint("Horizontal", 18, 2, 35, 2))
sketch1.addConstraint(Sketcher.Constraint("Horizontal", 16, 2, 37, 2))
sketch1.addConstraint(Sketcher.Constraint("Horizontal", 14, 2, 39, 2))
sketch1.addConstraint(Sketcher.Constraint("Horizontal", 10, 2, 43, 2))
sketch1.addConstraint(Sketcher.Constraint("Horizontal", 8, 2, 45, 2))
sketch1.addConstraint(Sketcher.Constraint("Horizontal", 6, 2, 47, 2))
sketch1.addConstraint(Sketcher.Constraint("Horizontal", 4, 2, 49, 2))
sketch1.addConstraint(Sketcher.Constraint("Horizontal", 2, 2, 51, 2))
sketch1.addConstraint(Sketcher.Constraint("Horizontal", 0, 2, 53, 2))
sketch1.addConstraint(Sketcher.Constraint("Horizontal", 58, 2, 59, 2))
sketch1.addConstraint(Sketcher.Constraint("Horizontal", 56, 2, 61, 2))
sketch1.addConstraint(Sketcher.Constraint("Vertical", 23, 3, 25, 3))
sketch1.addConstraint(Sketcher.Constraint("Vertical", 10, 2, 11, 2))
sketch1.addConstraint(Sketcher.Constraint("Vertical", 8, 2, 13, 2))
sketch1.addConstraint(Sketcher.Constraint("Vertical", 6, 2, 15, 2))
sketch1.addConstraint(Sketcher.Constraint("Vertical", 4, 2, 17, 2))
sketch1.addConstraint(Sketcher.Constraint("Vertical", 2, 2, 19, 2))
sketch1.addConstraint(Sketcher.Constraint("Vertical", 0, 2, 21, 2))
sketch1.addConstraint(Sketcher.Constraint("Vertical", 30, 2, 55, 2))
sketch1.addConstraint(Sketcher.Constraint("Vertical", 28, 2, 57, 2))
sketch1.addConstraint(Sketcher.Constraint("Equal", 0, 2))
sketch1.addConstraint(Sketcher.Constraint("Equal", 2, 4))
sketch1.addConstraint(Sketcher.Constraint("Equal", 4, 6))
sketch1.addConstraint(Sketcher.Constraint("Equal", 6, 8))
sketch1.addConstraint(Sketcher.Constraint("Equal", 8, 10))
sketch1.addConstraint(Sketcher.Constraint("Equal", 22, 24))
sketch1.addConstraint(Sketcher.Constraint("Equal", 24, 26))
sketch1.addConstraint(Sketcher.Constraint("Diameter", 64, 6.0))
sketch1.addConstraint(Sketcher.Constraint("Diameter", 65, 15.0))
sketch1.addConstraint(Sketcher.Constraint("DistanceY", -1, 1, 68, 3, 15.0))
sketch1.addConstraint(Sketcher.Constraint("DistanceY", -1, 1, 9, 2, 3.0))
sketch1.addConstraint(Sketcher.Constraint("DistanceY", -1, 1, 10, 2, 2.0))
sketch1.addConstraint(Sketcher.Constraint("DistanceX", 25, 2, -1, 1, 3.0))
sketch1.addConstraint(Sketcher.Constraint("Radius", 3, 30.000281))
sketch1.addConstraint(Sketcher.Constraint("Radius", 1, 25.000075))
sketch1.addConstraint(Sketcher.Constraint("Radius", 7, 29.999956))
sketch1.addConstraint(Sketcher.Constraint("Radius", 9, 24.999892))
sketch1.addConstraint(Sketcher.Constraint("Radius", 11, 29.999958))
sketch1.addConstraint(Sketcher.Constraint("DistanceX", -1, 1, 3, 3, 0.000199))
sketch1.addConstraint(Sketcher.Constraint("DistanceY", 3, 3, -1, 1, 0.000199))
sketch1.addConstraint(Sketcher.Constraint("DistanceX", 64, 3, -1, 1, 8.816779))
sketch1.addConstraint(Sketcher.Constraint("DistanceX", 0, 2, -1, 1, 12.269592))
sketch1.addConstraint(Sketcher.Constraint("DistanceY", -1, 1, 1, 2, 19.671249))
sketch1.addConstraint(Sketcher.Constraint("DistanceX", 4, 2, -1, 1, 19.671249))
sketch1.addConstraint(Sketcher.Constraint("DistanceY", -1, 1, 5, 2, 12.269592))
sketch1.addConstraint(Sketcher.Constraint("DistanceX", 6, 2, -1, 1, 26.889359))
sketch1.addConstraint(Sketcher.Constraint("DistanceY", -1, 1, 6, 2, 13.302721))
sketch1.addConstraint(Sketcher.Constraint("DistanceX", 7, 2, -1, 1, 28.420092))
sketch1.addConstraint(Sketcher.Constraint("DistanceX", 10, 2, -1, 1, 29.933259))
sketch1.addConstraint(Sketcher.Constraint("DistanceY", 22, 2, -1, 1, 26.889359))
sketch1.addConstraint(Sketcher.Constraint("DistanceY", 23, 2, -1, 1, 28.420092))
sketch1.addConstraint(Sketcher.Constraint("DistanceY", 26, 2, -1, 1, 29.933259))
sketch1.addConstraint(Sketcher.Constraint("Distance", 0, 5.210767))
sketch1.addConstraint(Sketcher.Constraint("DistanceX", 9, 3, -1, 1, 0.000106))
sketch1.addConstraint(Sketcher.Constraint("DistanceY", 64, 3, -1, 1, 12.135255))
sketch1.addConstraint(Sketcher.Constraint("DistanceX", 67, 3, -1, 1, 14.265848))
sketch1.addConstraint(Sketcher.Constraint("DistanceY", -1, 1, 67, 3, 4.635255))
sketch1.addConstraint(Sketcher.Constraint("DistanceX", 1, 2, -1, 1, 15.428608))
pad1 = body.newObject("PartDesign::Pad", "Pad")
pad1.Profile = sketch1
pad1.Length = 10

doc.recompute()
